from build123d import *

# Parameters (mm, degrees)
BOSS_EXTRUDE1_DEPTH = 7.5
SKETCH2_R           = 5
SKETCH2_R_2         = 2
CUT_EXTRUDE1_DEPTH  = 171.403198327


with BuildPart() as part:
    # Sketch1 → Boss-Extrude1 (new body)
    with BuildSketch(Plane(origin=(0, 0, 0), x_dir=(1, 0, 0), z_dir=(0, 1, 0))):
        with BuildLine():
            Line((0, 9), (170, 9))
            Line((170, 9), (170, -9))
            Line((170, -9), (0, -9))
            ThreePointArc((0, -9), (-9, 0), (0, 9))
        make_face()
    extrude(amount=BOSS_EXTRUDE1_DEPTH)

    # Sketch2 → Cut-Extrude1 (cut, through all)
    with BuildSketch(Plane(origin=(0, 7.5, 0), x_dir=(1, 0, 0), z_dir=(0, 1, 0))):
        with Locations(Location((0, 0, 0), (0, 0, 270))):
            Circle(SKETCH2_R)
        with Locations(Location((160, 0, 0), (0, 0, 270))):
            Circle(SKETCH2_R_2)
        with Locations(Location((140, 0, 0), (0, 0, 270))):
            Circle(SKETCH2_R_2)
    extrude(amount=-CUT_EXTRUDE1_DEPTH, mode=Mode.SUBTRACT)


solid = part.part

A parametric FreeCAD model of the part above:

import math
import FreeCAD as App
import Part
import Sketcher
from FreeCAD import Vector

doc = App.newDocument("Part")
body = doc.addObject("PartDesign::Body", "Body")

sketch1 = doc.addObject("Sketcher::SketchObject", "Sketch")
body.addObject(sketch1)
sketch1.AttachmentSupport = (doc.XZ_Plane, [""])
sketch1.MapMode = "FlatFace"
sketch1.addGeometry(Part.LineSegment(Vector(170, -9, 0), Vector(0, -9, 0)), False)
sketch1.addGeometry(Part.ArcOfCircle(Part.Circle(Vector(0, 0, 0), Vector(0, 0, 1), 9), math.radians(90), math.radians(270)), False)
sketch1.addGeometry(Part.LineSegment(Vector(0, 9, 0), Vector(170, 9, 0)), False)
sketch1.addGeometry(Part.LineSegment(Vector(170, 9, 0), Vector(170, -9, 0)), False)
sketch1.addConstraint(Sketcher.Constraint("Tangent", 0, 2, 1, 2))
sketch1.addConstraint(Sketcher.Constraint("Tangent", 1, 1, 2, 1))
sketch1.addConstraint(Sketcher.Constraint("Coincident", 2, 2, 3, 1))
sketch1.addConstraint(Sketcher.Constraint("Coincident", 3, 2, 0, 1))
sketch1.addConstraint(Sketcher.Constraint("Horizontal", 0))
sketch1.addConstraint(Sketcher.Constraint("Horizontal", 2))
sketch1.addConstraint(Sketcher.Constraint("Vertical", 3))
sketch1.addConstraint(Sketcher.Constraint("Coincident", 1, 3, -1, 1))
sketch1.addConstraint(Sketcher.Constraint("Radius", 1, 9.0))
sketch1.addConstraint(Sketcher.Constraint("DistanceX", 0, 2, 0, 1, 170.0))
pad1 = doc.addObject("PartDesign::Pad", "Pad")
body.addObject(pad1)
pad1.Profile = sketch1
pad1.Length = 7.5
pad1.Reversed = True

sketch2 = doc.addObject("Sketcher::SketchObject", "Sketch001")
body.addObject(sketch2)
sketch2.AttachmentSupport = (doc.XZ_Plane, [""])
sketch2.MapMode = "FlatFace"
sketch2.AttachmentOffset = App.Placement(Vector(0, 0, -7.5), App.Rotation())
sketch2.addGeometry(Part.Circle(Vector(0, 0, 0), Vector(0, 0, 1), 5), False)
sketch2.addGeometry(Part.Circle(Vector(160, 0, 0), Vector(0, 0, 1), 2), False)
sketch2.addGeometry(Part.Circle(Vector(140, 0, 0), Vector(0, 0, 1), 2), False)
sketch2.addConstraint(Sketcher.Constraint("Coincident", 0, 3, -1, 1))
sketch2.addConstraint(Sketcher.Constraint("Equal", 1, 2))
sketch2.addConstraint(Sketcher.Constraint("PointOnObject", 1, 3, -1))
sketch2.addConstraint(Sketcher.Constraint("PointOnObject", 2, 3, -1))
sketch2.addConstraint(Sketcher.Constraint("Diameter", 0, 10.0))
sketch2.addConstraint(Sketcher.Constraint("Diameter", 1, 4.0))
sketch2.addConstraint(Sketcher.Constraint("DistanceX", -1, 1, 1, 3, 160.0))
sketch2.addConstraint(Sketcher.Constraint("DistanceX", -1, 1, 2, 3, 140.0))
pocket1 = doc.addObject("PartDesign::Pocket", "Pocket")
body.addObject(pocket1)
pocket1.Profile = sketch2
pocket1.Type = "ThroughAll"
pocket1.Reversed = True

doc.recompute()
